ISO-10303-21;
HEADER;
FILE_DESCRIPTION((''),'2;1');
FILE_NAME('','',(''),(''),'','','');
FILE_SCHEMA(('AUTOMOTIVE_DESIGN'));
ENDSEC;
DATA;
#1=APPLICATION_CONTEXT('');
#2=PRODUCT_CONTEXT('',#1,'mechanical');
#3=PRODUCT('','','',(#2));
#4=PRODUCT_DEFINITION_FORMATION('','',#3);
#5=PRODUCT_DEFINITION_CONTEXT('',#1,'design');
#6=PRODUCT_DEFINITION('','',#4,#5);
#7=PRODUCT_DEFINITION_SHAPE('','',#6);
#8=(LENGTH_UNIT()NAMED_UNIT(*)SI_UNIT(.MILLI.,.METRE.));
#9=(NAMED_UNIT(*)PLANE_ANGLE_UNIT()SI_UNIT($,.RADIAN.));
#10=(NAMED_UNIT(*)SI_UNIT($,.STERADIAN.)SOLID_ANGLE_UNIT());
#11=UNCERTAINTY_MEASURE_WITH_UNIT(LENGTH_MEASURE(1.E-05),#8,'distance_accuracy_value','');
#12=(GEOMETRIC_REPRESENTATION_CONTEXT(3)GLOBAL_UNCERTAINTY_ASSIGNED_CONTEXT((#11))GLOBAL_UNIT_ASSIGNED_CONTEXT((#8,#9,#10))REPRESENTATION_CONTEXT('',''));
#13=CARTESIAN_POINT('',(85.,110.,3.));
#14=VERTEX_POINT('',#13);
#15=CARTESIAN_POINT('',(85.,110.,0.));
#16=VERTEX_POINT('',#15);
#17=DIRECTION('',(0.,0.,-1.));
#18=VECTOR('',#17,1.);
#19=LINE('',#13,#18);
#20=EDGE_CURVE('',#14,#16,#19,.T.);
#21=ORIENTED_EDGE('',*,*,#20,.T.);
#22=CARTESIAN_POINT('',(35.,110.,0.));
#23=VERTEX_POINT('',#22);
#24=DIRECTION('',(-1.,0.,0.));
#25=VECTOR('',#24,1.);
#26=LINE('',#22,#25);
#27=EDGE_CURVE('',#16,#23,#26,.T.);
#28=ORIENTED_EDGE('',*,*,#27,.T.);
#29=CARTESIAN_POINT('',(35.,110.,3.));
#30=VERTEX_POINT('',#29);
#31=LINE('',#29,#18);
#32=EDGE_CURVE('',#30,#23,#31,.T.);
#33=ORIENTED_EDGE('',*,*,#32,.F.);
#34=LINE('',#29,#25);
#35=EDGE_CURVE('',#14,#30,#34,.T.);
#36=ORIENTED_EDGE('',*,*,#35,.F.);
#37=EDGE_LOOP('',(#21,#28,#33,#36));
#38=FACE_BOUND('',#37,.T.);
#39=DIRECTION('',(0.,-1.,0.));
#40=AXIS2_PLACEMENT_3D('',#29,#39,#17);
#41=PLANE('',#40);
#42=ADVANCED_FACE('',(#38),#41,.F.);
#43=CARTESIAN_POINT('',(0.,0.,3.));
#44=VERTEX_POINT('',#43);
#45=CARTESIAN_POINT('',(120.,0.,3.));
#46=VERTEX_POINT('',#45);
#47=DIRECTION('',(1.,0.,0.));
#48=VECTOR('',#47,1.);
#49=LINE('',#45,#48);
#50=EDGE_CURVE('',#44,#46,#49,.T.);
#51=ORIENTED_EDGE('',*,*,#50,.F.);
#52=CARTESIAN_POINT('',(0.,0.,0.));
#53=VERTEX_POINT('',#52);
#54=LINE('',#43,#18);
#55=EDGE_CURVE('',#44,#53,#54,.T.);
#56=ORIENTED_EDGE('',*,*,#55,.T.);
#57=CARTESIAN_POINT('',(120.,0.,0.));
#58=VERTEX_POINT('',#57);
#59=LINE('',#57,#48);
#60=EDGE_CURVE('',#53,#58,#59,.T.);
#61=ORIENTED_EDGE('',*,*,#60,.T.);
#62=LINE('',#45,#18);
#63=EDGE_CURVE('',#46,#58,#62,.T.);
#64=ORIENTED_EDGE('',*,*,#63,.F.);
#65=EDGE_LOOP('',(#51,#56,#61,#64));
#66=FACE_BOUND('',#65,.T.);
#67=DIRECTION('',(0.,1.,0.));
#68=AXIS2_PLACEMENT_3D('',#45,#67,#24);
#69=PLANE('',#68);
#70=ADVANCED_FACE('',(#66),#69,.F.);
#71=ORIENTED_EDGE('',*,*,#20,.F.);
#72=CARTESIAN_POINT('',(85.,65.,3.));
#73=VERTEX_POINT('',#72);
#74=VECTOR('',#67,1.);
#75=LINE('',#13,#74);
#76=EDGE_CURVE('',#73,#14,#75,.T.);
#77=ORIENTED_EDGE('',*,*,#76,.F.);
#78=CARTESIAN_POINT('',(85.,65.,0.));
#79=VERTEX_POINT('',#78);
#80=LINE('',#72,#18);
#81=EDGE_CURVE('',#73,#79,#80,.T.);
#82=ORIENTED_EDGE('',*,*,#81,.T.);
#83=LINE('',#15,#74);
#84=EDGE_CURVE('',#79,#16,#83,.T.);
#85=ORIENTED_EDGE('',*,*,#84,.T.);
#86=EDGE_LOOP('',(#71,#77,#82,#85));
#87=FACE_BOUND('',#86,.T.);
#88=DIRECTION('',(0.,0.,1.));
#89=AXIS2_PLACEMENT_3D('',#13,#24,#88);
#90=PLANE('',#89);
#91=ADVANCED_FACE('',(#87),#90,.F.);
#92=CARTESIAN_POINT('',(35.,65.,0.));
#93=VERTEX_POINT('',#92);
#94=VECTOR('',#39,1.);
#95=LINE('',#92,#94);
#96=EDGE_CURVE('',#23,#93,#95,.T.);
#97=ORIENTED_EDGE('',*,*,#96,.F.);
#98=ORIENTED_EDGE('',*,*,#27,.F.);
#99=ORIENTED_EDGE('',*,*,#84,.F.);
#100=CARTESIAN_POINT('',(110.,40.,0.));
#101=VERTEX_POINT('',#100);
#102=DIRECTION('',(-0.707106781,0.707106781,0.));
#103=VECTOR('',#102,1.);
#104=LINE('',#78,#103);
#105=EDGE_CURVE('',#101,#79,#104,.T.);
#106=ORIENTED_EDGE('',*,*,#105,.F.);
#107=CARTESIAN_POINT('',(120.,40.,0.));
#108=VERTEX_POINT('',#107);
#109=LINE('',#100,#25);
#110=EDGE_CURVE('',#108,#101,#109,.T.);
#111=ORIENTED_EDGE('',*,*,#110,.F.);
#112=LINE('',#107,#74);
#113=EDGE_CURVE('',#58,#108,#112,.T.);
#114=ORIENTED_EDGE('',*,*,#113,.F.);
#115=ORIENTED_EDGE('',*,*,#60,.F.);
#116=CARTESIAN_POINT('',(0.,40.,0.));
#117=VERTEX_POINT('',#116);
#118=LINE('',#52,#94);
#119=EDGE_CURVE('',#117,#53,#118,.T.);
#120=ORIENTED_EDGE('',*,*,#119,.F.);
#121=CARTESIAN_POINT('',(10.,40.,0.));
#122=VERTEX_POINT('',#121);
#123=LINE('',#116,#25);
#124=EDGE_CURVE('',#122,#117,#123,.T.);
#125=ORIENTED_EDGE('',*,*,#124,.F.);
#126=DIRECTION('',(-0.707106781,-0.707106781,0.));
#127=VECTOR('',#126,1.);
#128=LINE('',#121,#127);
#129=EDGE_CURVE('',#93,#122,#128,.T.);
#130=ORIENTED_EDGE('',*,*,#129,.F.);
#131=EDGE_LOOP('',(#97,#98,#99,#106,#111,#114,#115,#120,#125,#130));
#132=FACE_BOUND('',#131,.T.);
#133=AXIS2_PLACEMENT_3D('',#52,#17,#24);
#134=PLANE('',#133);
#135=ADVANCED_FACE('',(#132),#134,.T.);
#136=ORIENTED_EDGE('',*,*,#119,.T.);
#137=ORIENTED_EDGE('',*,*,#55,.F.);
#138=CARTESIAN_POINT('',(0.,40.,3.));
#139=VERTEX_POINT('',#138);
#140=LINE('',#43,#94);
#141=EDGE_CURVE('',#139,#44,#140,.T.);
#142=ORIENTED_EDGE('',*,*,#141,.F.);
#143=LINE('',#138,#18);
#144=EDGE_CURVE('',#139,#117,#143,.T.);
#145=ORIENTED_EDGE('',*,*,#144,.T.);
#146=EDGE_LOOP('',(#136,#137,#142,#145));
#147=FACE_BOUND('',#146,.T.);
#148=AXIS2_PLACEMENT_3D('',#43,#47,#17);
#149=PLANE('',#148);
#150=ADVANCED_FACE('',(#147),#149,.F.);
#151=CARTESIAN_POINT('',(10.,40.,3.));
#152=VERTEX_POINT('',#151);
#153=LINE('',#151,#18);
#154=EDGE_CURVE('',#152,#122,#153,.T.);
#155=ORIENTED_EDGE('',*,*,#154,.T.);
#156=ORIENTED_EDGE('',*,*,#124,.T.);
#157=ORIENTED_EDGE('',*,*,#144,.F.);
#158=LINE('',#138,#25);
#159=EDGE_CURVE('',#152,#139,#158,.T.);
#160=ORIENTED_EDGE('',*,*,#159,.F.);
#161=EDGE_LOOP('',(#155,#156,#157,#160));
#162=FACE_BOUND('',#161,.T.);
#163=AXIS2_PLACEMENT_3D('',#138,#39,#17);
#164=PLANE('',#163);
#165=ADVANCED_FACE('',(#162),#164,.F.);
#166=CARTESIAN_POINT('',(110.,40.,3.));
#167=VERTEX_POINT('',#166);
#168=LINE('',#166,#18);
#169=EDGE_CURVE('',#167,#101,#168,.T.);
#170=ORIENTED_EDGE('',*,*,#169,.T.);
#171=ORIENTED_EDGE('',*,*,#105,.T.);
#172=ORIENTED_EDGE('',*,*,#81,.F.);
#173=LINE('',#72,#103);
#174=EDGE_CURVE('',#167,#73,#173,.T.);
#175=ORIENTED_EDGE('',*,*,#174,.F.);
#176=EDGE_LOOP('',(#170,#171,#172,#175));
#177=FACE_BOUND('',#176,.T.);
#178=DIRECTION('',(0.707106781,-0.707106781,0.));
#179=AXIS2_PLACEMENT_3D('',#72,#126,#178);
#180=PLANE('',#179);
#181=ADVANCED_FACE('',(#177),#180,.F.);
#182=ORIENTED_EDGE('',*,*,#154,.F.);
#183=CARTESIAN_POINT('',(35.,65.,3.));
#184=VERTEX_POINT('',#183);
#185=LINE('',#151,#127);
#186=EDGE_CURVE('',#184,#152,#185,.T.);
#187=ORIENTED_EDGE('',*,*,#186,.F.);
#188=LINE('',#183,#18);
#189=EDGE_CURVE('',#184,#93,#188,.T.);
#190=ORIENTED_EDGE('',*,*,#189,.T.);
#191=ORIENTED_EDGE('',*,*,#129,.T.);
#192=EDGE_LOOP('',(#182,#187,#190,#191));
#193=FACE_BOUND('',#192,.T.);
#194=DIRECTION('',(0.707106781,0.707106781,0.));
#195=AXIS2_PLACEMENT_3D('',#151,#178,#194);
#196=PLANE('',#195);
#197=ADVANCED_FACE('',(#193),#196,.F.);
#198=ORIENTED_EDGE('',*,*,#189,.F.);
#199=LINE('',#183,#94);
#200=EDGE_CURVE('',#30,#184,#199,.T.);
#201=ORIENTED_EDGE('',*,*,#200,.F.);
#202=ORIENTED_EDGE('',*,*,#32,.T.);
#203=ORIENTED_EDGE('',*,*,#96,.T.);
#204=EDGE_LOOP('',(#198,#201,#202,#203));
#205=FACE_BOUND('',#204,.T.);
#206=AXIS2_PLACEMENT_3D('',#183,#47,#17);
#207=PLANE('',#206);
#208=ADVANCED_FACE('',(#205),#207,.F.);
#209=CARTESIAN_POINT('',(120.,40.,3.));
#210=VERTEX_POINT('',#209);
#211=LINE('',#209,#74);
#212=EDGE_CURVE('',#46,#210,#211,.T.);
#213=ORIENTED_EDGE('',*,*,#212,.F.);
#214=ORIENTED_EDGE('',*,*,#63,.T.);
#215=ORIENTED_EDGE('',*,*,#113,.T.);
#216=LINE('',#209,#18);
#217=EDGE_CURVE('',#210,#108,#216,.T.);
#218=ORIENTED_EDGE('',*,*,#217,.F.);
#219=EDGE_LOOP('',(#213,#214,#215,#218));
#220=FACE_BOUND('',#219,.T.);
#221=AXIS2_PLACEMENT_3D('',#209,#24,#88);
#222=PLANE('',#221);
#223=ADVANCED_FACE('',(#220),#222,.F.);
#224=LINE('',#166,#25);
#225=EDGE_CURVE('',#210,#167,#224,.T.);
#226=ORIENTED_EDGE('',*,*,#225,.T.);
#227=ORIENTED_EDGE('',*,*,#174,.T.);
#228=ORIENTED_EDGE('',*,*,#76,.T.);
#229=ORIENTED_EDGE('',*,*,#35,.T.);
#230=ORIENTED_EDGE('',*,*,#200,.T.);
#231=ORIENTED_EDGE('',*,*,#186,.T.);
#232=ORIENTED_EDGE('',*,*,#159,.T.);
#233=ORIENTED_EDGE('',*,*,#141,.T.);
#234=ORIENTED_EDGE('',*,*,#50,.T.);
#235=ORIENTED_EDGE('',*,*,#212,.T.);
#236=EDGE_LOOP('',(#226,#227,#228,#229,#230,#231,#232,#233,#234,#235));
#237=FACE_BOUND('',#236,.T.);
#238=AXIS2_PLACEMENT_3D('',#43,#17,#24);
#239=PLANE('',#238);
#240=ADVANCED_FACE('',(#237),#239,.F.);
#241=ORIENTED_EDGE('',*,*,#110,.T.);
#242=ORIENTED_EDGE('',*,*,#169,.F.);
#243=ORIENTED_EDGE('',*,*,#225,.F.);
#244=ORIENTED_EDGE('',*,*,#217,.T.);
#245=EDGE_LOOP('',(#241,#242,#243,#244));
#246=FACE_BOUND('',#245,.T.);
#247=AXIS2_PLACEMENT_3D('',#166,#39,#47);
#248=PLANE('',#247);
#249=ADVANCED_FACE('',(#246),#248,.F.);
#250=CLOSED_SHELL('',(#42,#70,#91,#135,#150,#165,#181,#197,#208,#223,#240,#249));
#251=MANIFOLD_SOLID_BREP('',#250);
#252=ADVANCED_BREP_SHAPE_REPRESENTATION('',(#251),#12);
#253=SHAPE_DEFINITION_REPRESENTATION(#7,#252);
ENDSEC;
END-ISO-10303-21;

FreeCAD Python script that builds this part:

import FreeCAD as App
import Part
import Sketcher
Q = App.Units.Quantity

doc = App.newDocument("Part")
params = doc.addObject("Spreadsheet::Sheet", "Params")
for row, (alias, value) in enumerate([
    ("sketch1_width", "120 mm"),
    ("sketch1_width2", "10 mm"),
    ("sketch1_width3", "50 mm"),
    ("sketch1_height", "40 mm"),
    ("sketch1_height2", "45 mm"),
    ("pad1_length", "3 mm"),
], start=1):
    params.set(f"A{row}", alias)
    params.set(f"B{row}", "=" + value)
    params.setAlias(f"B{row}", alias)

body = doc.addObject("PartDesign::Body", "Body")

# Sketch on XY plane
sketch1 = body.newObject("Sketcher::SketchObject", "Sketch")
sketch1.AttachmentSupport = (doc.getObject("XY_Plane"), [""])
sketch1.MapMode = "FlatFace"
sketch1.addGeometry(Part.LineSegment(App.Vector(0, 40, 0), App.Vector(0, 0, 0)), False)
sketch1.addGeometry(Part.LineSegment(App.Vector(0, 0, 0), App.Vector(120, 0, 0)), False)
sketch1.addGeometry(Part.LineSegment(App.Vector(120, 0, 0), App.Vector(120, 40, 0)), False)
sketch1.addGeometry(Part.LineSegment(App.Vector(120, 40, 0), App.Vector(110, 40, 0)), False)
sketch1.addGeometry(Part.LineSegment(App.Vector(110, 40, 0), App.Vector(85, 65, 0)), False)
sketch1.addGeometry(Part.LineSegment(App.Vector(85, 65, 0), App.Vector(85, 110, 0)), False)
sketch1.addGeometry(Part.LineSegment(App.Vector(85, 110, 0), App.Vector(35, 110, 0)), False)
sketch1.addGeometry(Part.LineSegment(App.Vector(35, 110, 0), App.Vector(35, 65, 0)), False)
sketch1.addGeometry(Part.LineSegment(App.Vector(35, 65, 0), App.Vector(10, 40, 0)), False)
sketch1.addGeometry(Part.LineSegment(App.Vector(10, 40, 0), App.Vector(0, 40, 0)), False)
sketch1.addConstraint(Sketcher.Constraint("Coincident", 0, 2, 1, 1))
sketch1.addConstraint(Sketcher.Constraint("Coincident", 1, 2, 2, 1))
sketch1.addConstraint(Sketcher.Constraint("Coincident", 2, 2, 3, 1))
sketch1.addConstraint(Sketcher.Constraint("Coincident", 3, 2, 4, 1))
sketch1.addConstraint(Sketcher.Constraint("Coincident", 4, 2, 5, 1))
sketch1.addConstraint(Sketcher.Constraint("Coincident", 5, 2, 6, 1))
sketch1.addConstraint(Sketcher.Constraint("Coincident", 6, 2, 7, 1))
sketch1.addConstraint(Sketcher.Constraint("Coincident", 7, 2, 8, 1))
sketch1.addConstraint(Sketcher.Constraint("Coincident", 8, 2, 9, 1))
sketch1.addConstraint(Sketcher.Constraint("Coincident", 9, 2, 0, 1))
sketch1.addConstraint(Sketcher.Constraint("Vertical", 0))
sketch1.addConstraint(Sketcher.Constraint("Horizontal", 1))
sketch1.addConstraint(Sketcher.Constraint("Vertical", 2))
sketch1.addConstraint(Sketcher.Constraint("Horizontal", 3))
sketch1.addConstraint(Sketcher.Constraint("Vertical", 5))
sketch1.addConstraint(Sketcher.Constraint("Horizontal", 6))
sketch1.addConstraint(Sketcher.Constraint("Vertical", 7))
sketch1.addConstraint(Sketcher.Constraint("Horizontal", 9))
sketch1.addConstraint(Sketcher.Constraint("Coincident", 0, 2, -1, 1))
sketch1.addConstraint(Sketcher.Constraint("Perpendicular", 4, 8))
sketch1.addConstraint(Sketcher.Constraint("Horizontal", 4, 2, 7, 2))
sketch1.addConstraint(Sketcher.Constraint("Horizontal", 3, 2, 8, 2))
sketch1.addConstraint(Sketcher.Constraint("Equal", 3, 9))
sketch1.addConstraint(Sketcher.Constraint("Equal", 4, 8))
sketch1.addConstraint(Sketcher.Constraint("DistanceX", 1, 1, 1, 2, Q("120 mm")))
sketch1.addConstraint(Sketcher.Constraint("DistanceX", 3, 2, 3, 1, Q("10 mm")))
sketch1.addConstraint(Sketcher.Constraint("DistanceX", 6, 2, 6, 1, Q("50 mm")))
sketch1.addConstraint(Sketcher.Constraint("DistanceY", 0, 2, 0, 1, Q("40 mm")))
sketch1.addConstraint(Sketcher.Constraint("DistanceY", 5, 1, 5, 2, Q("45 mm")))
sketch1.setExpression("Constraints[24]", "Params.sketch1_width")
sketch1.setExpression("Constraints[25]", "Params.sketch1_width2")
sketch1.setExpression("Constraints[26]", "Params.sketch1_width3")
sketch1.setExpression("Constraints[27]", "Params.sketch1_height")
sketch1.setExpression("Constraints[28]", "Params.sketch1_height2")
pad1 = body.newObject("PartDesign::Pad", "Pad")
pad1.Profile = sketch1
pad1.setExpression("Length", "Params.pad1_length")

doc.recompute()
